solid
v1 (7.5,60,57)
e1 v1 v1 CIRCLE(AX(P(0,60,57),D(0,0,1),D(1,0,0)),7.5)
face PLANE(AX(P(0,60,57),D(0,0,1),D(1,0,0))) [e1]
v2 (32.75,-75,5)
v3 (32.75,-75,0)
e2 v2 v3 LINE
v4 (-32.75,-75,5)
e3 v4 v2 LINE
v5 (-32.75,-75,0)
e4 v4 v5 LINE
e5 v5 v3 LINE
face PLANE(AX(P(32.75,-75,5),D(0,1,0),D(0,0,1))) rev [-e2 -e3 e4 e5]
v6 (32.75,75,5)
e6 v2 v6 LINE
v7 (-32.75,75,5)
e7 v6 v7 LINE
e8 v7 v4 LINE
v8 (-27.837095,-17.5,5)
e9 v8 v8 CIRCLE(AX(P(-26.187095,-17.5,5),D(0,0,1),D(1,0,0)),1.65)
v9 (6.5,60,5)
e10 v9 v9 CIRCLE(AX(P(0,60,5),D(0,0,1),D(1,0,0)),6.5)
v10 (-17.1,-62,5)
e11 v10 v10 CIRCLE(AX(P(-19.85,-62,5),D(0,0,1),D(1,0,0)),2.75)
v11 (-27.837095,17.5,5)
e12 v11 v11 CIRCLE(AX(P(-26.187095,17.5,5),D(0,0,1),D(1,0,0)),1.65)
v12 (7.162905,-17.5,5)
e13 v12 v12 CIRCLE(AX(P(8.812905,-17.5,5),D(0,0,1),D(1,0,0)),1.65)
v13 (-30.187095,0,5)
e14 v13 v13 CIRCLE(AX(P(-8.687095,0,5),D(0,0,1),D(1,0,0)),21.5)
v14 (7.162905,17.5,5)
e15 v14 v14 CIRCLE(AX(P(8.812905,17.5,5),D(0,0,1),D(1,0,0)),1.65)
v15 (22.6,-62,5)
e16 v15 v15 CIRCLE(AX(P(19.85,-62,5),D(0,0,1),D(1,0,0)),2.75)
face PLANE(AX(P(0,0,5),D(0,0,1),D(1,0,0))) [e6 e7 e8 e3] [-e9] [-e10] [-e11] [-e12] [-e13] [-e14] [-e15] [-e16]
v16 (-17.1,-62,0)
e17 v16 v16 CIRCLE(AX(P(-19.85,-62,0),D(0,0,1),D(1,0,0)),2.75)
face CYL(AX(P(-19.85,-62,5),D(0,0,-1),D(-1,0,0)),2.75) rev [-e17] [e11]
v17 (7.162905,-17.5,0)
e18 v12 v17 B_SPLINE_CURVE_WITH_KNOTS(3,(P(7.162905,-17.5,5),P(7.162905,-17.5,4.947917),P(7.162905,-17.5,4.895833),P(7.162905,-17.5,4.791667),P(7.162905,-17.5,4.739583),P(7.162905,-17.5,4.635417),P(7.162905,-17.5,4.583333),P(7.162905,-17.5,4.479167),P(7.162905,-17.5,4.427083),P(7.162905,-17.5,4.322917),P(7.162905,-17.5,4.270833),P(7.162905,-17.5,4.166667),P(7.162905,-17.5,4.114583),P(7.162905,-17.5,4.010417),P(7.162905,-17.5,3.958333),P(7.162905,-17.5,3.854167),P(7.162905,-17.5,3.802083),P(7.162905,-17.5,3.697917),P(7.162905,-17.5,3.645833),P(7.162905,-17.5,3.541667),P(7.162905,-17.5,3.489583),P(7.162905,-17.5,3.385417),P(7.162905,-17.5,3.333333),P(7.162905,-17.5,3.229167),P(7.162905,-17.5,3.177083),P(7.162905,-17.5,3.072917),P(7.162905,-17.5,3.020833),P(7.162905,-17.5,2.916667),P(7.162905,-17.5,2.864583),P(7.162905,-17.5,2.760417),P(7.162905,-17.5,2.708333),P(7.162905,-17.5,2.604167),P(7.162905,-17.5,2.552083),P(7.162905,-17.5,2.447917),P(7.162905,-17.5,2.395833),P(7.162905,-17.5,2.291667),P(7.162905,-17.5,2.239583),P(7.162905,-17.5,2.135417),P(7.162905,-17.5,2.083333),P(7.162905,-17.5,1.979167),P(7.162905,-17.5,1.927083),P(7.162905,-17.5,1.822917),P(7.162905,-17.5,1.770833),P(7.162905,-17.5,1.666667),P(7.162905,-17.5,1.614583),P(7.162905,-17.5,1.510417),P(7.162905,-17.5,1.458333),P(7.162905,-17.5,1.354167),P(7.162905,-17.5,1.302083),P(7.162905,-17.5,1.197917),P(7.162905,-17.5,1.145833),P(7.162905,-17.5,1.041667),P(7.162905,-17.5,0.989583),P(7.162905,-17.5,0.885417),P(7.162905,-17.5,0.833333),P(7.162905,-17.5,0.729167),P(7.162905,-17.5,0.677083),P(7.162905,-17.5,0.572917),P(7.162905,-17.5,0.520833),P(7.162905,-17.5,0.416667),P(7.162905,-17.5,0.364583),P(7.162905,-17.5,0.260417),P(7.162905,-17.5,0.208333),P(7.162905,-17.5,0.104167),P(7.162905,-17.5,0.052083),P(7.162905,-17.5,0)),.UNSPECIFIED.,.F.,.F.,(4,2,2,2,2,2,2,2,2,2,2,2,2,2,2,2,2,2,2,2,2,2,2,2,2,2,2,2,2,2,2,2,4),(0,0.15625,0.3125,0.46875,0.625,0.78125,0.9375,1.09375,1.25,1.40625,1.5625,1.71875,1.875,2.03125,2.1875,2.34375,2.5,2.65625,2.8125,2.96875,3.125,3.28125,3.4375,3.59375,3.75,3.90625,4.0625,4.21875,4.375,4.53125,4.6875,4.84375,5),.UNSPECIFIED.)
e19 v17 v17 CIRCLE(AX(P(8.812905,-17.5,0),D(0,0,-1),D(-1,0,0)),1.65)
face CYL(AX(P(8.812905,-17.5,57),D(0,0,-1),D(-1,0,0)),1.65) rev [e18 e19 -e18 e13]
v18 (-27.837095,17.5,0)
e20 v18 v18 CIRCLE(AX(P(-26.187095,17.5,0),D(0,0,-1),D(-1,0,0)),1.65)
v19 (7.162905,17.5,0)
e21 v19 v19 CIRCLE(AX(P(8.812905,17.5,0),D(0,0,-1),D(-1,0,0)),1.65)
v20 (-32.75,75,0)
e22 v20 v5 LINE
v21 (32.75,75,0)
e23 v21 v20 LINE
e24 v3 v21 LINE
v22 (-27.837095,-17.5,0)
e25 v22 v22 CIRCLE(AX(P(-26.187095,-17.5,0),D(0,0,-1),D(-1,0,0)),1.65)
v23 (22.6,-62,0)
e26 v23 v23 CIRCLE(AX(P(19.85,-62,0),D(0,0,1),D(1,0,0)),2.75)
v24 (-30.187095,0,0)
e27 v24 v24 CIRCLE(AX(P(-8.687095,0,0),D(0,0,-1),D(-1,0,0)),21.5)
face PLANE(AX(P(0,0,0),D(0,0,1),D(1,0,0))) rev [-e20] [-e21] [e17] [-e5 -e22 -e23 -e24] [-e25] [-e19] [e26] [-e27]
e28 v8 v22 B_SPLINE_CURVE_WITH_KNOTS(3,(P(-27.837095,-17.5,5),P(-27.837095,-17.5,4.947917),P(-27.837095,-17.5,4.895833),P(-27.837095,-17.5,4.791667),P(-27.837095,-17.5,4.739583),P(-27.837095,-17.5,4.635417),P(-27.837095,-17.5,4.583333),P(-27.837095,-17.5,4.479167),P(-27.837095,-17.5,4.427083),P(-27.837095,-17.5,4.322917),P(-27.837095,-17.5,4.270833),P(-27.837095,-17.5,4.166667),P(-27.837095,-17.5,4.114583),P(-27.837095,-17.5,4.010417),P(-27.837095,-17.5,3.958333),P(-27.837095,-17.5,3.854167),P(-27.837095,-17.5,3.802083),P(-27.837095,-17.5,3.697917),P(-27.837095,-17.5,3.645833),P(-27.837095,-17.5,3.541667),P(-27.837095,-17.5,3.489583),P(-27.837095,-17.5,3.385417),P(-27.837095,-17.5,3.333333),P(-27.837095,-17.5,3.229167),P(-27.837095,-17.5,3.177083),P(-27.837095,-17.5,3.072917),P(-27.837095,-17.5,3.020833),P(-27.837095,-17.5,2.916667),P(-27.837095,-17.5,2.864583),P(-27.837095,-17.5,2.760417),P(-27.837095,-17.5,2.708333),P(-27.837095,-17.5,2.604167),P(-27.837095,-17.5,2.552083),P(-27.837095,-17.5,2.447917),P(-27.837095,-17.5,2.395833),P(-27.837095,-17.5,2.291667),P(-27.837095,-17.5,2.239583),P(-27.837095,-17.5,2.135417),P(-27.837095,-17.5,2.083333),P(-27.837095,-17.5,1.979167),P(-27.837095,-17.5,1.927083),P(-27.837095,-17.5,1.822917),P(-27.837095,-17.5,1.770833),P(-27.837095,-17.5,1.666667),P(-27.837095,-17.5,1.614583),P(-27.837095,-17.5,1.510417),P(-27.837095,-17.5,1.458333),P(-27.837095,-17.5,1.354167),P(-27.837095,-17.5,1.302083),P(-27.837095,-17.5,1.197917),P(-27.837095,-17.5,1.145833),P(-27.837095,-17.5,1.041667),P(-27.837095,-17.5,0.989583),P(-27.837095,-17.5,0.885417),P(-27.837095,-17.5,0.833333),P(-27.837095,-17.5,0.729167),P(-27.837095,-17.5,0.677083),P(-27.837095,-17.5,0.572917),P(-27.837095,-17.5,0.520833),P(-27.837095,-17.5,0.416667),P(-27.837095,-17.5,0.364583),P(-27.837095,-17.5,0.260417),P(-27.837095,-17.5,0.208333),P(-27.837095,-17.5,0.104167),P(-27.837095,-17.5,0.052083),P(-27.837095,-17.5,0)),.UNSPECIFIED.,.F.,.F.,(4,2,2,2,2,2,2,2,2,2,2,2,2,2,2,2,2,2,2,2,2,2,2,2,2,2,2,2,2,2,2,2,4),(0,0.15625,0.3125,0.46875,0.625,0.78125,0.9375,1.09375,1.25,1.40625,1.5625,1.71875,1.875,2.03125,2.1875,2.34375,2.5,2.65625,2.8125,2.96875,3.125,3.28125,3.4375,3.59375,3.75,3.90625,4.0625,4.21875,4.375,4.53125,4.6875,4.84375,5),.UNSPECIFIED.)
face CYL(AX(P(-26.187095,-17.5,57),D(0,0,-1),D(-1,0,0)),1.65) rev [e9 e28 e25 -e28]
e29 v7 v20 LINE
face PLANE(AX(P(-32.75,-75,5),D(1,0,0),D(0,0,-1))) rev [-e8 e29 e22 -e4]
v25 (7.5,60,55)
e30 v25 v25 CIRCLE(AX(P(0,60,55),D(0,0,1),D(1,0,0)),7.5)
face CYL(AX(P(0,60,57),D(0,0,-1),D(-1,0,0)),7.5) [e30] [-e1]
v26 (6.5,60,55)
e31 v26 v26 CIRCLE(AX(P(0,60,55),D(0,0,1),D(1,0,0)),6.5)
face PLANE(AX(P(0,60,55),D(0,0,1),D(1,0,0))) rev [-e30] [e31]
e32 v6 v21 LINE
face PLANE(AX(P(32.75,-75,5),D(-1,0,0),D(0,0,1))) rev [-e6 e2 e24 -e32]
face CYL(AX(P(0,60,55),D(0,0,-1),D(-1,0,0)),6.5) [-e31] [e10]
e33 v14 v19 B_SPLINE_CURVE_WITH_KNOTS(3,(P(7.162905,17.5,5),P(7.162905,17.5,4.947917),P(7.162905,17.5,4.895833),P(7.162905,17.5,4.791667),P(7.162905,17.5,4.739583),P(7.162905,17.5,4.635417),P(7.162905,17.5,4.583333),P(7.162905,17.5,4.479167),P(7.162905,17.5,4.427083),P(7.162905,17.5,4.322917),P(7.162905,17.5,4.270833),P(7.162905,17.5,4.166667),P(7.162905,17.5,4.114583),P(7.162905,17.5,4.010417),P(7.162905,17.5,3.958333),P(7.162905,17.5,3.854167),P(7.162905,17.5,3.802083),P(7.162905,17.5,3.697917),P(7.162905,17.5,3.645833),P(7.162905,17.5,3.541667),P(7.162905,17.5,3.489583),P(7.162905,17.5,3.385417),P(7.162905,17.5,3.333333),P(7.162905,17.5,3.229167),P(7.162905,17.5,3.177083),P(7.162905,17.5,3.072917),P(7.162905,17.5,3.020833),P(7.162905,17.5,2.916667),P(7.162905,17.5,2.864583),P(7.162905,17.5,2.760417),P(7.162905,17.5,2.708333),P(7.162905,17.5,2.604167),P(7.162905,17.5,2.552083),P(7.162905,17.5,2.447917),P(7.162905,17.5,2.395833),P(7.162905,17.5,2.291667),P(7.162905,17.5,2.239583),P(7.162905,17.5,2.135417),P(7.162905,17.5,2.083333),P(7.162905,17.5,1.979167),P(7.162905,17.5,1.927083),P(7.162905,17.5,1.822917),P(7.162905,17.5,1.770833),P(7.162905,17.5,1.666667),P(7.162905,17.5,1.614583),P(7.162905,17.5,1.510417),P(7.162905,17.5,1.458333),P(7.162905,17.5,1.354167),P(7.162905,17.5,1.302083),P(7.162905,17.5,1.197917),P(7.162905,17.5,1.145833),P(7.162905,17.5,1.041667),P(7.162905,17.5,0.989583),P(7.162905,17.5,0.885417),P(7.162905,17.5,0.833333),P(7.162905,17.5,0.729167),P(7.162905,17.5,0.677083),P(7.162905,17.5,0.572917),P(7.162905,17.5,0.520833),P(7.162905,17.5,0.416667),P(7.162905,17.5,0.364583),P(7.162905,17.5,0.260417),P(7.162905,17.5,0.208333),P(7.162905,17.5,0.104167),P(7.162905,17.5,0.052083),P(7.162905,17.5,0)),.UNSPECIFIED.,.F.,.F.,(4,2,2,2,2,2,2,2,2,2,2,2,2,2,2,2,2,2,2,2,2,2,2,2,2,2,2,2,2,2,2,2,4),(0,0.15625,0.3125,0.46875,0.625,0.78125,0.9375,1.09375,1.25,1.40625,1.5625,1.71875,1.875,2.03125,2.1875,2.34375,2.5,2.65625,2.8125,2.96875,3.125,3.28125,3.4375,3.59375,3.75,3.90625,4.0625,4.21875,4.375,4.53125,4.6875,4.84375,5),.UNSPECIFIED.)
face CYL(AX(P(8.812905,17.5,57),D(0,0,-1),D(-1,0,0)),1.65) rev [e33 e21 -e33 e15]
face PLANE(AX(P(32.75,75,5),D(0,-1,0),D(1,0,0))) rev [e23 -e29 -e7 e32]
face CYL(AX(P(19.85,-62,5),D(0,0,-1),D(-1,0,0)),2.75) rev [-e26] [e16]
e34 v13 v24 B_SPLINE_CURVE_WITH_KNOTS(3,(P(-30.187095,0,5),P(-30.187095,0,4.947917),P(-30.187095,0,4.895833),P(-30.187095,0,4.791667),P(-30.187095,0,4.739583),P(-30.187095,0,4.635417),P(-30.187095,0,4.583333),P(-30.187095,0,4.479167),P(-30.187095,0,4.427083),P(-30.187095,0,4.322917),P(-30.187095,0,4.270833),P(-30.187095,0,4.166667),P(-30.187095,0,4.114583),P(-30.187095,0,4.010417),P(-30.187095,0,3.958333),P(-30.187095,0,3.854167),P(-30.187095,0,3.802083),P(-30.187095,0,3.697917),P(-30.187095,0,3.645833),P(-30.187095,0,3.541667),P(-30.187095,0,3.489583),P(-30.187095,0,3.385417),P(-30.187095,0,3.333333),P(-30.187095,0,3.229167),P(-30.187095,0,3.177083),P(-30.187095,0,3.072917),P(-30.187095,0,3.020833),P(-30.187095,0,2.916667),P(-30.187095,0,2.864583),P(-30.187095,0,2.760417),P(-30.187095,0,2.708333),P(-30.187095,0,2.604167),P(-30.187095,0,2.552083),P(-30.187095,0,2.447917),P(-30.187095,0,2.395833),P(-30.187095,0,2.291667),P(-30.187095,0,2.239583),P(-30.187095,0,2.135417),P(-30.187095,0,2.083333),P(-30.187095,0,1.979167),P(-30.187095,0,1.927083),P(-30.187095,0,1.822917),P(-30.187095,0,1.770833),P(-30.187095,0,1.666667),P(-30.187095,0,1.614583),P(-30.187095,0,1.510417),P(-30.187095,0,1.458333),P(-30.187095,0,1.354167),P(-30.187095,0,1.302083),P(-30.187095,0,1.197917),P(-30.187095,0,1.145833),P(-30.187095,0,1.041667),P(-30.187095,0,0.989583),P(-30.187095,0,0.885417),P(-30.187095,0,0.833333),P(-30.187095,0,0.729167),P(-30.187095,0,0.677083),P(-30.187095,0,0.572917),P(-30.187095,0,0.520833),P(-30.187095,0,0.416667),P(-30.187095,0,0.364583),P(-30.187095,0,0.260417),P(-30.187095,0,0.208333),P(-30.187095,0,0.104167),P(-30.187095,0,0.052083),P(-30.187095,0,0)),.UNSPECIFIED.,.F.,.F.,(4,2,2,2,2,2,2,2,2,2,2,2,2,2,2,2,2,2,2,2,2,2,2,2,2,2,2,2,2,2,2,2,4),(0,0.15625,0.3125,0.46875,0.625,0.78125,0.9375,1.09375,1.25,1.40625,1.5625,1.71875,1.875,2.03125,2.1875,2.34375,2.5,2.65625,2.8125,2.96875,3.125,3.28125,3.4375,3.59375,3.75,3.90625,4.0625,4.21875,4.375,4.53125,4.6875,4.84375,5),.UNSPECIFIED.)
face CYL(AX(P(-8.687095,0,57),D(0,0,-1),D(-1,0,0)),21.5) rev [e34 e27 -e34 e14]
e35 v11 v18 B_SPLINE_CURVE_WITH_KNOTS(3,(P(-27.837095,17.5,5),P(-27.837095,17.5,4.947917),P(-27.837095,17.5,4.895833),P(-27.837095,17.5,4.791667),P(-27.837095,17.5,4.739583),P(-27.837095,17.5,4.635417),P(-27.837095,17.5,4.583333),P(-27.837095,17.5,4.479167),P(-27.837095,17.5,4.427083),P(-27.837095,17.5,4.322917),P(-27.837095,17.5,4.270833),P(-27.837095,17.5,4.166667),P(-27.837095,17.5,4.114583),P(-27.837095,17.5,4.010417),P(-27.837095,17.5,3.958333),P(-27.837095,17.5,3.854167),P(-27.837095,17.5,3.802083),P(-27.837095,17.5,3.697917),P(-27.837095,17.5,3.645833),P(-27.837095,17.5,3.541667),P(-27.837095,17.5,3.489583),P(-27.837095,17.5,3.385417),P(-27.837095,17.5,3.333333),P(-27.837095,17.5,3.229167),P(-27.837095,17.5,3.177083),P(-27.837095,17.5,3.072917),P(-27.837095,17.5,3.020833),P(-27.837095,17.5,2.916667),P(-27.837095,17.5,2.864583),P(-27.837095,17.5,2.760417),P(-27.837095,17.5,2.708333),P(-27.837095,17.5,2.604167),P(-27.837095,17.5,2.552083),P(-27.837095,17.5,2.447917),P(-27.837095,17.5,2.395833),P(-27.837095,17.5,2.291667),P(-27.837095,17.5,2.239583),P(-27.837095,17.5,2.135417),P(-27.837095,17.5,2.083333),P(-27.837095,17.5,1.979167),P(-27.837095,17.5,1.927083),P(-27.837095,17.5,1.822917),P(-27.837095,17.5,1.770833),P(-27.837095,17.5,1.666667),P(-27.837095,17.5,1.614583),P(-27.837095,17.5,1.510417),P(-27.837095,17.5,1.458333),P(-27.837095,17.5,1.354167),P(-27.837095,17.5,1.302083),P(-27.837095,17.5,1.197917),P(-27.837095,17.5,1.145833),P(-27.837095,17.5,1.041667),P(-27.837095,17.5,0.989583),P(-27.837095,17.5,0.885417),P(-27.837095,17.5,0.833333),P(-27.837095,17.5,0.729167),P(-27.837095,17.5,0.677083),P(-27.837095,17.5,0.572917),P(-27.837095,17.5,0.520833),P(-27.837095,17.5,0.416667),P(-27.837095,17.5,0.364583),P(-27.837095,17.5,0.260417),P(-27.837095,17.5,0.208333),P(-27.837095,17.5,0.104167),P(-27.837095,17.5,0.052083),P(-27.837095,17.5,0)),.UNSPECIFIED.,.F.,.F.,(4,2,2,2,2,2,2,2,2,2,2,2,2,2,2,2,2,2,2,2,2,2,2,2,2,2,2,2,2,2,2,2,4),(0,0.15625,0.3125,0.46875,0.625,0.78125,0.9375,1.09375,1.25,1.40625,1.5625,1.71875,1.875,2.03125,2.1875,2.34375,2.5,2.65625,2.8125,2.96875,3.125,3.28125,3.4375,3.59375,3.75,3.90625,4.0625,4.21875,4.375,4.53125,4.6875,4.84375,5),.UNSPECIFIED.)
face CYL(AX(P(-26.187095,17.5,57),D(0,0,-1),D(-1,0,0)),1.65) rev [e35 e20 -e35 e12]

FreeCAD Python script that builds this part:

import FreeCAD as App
import Part
import Sketcher

V = App.Vector
Q = App.Units.Quantity

doc = App.newDocument("Part")
body = doc.addObject("PartDesign::Body", "Body")

sketch1 = doc.addObject("Sketcher::SketchObject", "Sketch")
body.addObject(sketch1)
sketch1.AttachmentSupport = (doc.XY_Plane, [""])
sketch1.MapMode = "FlatFace"
sketch1.addGeometry(Part.LineSegment(V(-32.8, 75, 0), V(-32.8, -75, 0)), False)
sketch1.addGeometry(Part.LineSegment(V(-32.8, -75, 0), V(32.8, -75, 0)), False)
sketch1.addGeometry(Part.LineSegment(V(32.8, -75, 0), V(32.8, 75, 0)), False)
sketch1.addGeometry(Part.LineSegment(V(32.8, 75, 0), V(-32.8, 75, 0)), False)
sketch1.addGeometry(Part.Circle(V(-19.9, -62, 0), V(0, 0, 1), 2.8), False)
sketch1.addGeometry(Part.Circle(V(19.9, -62, 0), V(0, 0, 1), 2.8), False)
sketch1.addConstraint(Sketcher.Constraint("Coincident", 0, 2, 1, 1))
sketch1.addConstraint(Sketcher.Constraint("Coincident", 1, 2, 2, 1))
sketch1.addConstraint(Sketcher.Constraint("Coincident", 2, 2, 3, 1))
sketch1.addConstraint(Sketcher.Constraint("Coincident", 3, 2, 0, 1))
sketch1.addConstraint(Sketcher.Constraint("Vertical", 0))
sketch1.addConstraint(Sketcher.Constraint("Horizontal", 1))
sketch1.addConstraint(Sketcher.Constraint("Vertical", 2))
sketch1.addConstraint(Sketcher.Constraint("Horizontal", 3))
sketch1.addConstraint(Sketcher.Constraint("Equal", 4, 5))
sketch1.addConstraint(Sketcher.Constraint("Symmetric", 0, 2, 2, 2, -1, 1))
sketch1.addConstraint(Sketcher.Constraint("Symmetric", 4, 3, 5, 3, -2))
sketch1.addConstraint(Sketcher.Constraint("Diameter", 4, Q("5.5 mm")))
sketch1.addConstraint(Sketcher.Constraint("DistanceY", 0, 2, 0, 1, Q("150 mm")))
sketch1.addConstraint(Sketcher.Constraint("DistanceX", 1, 1, 1, 2, Q("65.5 mm")))
sketch1.addConstraint(Sketcher.Constraint("DistanceY", 4, 3, -1, 1, Q("62 mm")))
sketch1.addConstraint(Sketcher.Constraint("DistanceX", 4, 3, 5, 3, Q("39.7 mm")))
pad1 = doc.addObject("PartDesign::Pad", "Pad")
body.addObject(pad1)
pad1.Profile = sketch1
pad1.Length = 5

sketch2 = doc.addObject("Sketcher::SketchObject", "Sketch001")
body.addObject(sketch2)
sketch2.AttachmentSupport = (doc.XY_Plane, [""])
sketch2.MapMode = "FlatFace"
sketch2.AttachmentOffset = App.Placement(V(0, 0, 5), App.Rotation())
sketch2.addGeometry(Part.Circle(V(0, 60, 0), V(0, 0, 1), 6), False)
sketch2.addConstraint(Sketcher.Constraint("PointOnObject", 0, 3, -2))
sketch2.addConstraint(Sketcher.Constraint("Diameter", 0, Q("13 mm")))
sketch2.addConstraint(Sketcher.Constraint("DistanceY", -1, 1, 0, 3, Q("60 mm")))
pad2 = doc.addObject("PartDesign::Pad", "Pad001")
body.addObject(pad2)
pad2.Profile = sketch2
pad2.Length = 50

sketch3 = doc.addObject("Sketcher::SketchObject", "Sketch002")
body.addObject(sketch3)
sketch3.AttachmentSupport = (doc.XY_Plane, [""])
sketch3.MapMode = "FlatFace"
sketch3.AttachmentOffset = App.Placement(V(0, 0, 55), App.Rotation())
sketch3.addGeometry(Part.Circle(V(0, 60, 0), V(0, 0, 1), 8), False)
sketch3.addConstraint(Sketcher.Constraint("PointOnObject", 0, 3, -2))
sketch3.addConstraint(Sketcher.Constraint("Diameter", 0, Q("15 mm")))
sketch3.addConstraint(Sketcher.Constraint("DistanceY", -1, 1, 0, 3, Q("60 mm")))
pad3 = doc.addObject("PartDesign::Pad", "Pad002")
body.addObject(pad3)
pad3.Profile = sketch3
pad3.Length = 2

sketch4 = doc.addObject("Sketcher::SketchObject", "Sketch003")
body.addObject(sketch4)
sketch4.AttachmentSupport = (doc.XY_Plane, [""])
sketch4.MapMode = "FlatFace"
sketch4.addGeometry(Part.Circle(V(-26.2, 17.5, 0), V(0, 0, 1), 1.6), False)
sketch4.addGeometry(Part.Circle(V(8.8, 17.5, 0), V(0, 0, 1), 1.6), False)
sketch4.addGeometry(Part.Circle(V(8.8, -17.5, 0), V(0, 0, 1), 1.6), False)
sketch4.addGeometry(Part.Circle(V(-26.2, -17.5, 0), V(0, 0, 1), 1.6), False)
sketch4.addGeometry(Part.Circle(V(-8.7, 0, 0), V(0, 0, 1), 21.5), False)
sketch4.addConstraint(Sketcher.Constraint("Equal", 0, 1))
sketch4.addConstraint(Sketcher.Constraint("Equal", 1, 2))
sketch4.addConstraint(Sketcher.Constraint("Equal", 2, 3))
sketch4.addConstraint(Sketcher.Constraint("Symmetric", 1, 3, 2, 3, -1))
sketch4.addConstraint(Sketcher.Constraint("Symmetric", 0, 3, 3, 3, -1))
sketch4.addConstraint(Sketcher.Constraint("PointOnObject", 4, 3, -1))
sketch4.addConstraint(Sketcher.Constraint("Horizontal", 0, 3, 1, 3))
sketch4.addConstraint(Sketcher.Constraint("Diameter", 4, Q("43 mm")))
sketch4.addConstraint(Sketcher.Constraint("Diameter", 0, Q("3.3 mm")))
sketch4.addConstraint(Sketcher.Constraint("DistanceX", 0, 3, 1, 3, Q("35 mm")))
sketch4.addConstraint(Sketcher.Constraint("DistanceY", 2, 3, 1, 3, Q("35 mm")))
sketch4.addConstraint(Sketcher.Constraint("DistanceX", 0, 3, 4, 3, Q("17.5 mm")))
sketch4.addConstraint(Sketcher.Constraint("DistanceX", 0, 3, -1, 1, Q("26.187095 mm")))
pocket1 = doc.addObject("PartDesign::Pocket", "Pocket")
body.addObject(pocket1)
pocket1.Profile = sketch4
pocket1.Type = "ThroughAll"
pocket1.Reversed = True

doc.recompute()
